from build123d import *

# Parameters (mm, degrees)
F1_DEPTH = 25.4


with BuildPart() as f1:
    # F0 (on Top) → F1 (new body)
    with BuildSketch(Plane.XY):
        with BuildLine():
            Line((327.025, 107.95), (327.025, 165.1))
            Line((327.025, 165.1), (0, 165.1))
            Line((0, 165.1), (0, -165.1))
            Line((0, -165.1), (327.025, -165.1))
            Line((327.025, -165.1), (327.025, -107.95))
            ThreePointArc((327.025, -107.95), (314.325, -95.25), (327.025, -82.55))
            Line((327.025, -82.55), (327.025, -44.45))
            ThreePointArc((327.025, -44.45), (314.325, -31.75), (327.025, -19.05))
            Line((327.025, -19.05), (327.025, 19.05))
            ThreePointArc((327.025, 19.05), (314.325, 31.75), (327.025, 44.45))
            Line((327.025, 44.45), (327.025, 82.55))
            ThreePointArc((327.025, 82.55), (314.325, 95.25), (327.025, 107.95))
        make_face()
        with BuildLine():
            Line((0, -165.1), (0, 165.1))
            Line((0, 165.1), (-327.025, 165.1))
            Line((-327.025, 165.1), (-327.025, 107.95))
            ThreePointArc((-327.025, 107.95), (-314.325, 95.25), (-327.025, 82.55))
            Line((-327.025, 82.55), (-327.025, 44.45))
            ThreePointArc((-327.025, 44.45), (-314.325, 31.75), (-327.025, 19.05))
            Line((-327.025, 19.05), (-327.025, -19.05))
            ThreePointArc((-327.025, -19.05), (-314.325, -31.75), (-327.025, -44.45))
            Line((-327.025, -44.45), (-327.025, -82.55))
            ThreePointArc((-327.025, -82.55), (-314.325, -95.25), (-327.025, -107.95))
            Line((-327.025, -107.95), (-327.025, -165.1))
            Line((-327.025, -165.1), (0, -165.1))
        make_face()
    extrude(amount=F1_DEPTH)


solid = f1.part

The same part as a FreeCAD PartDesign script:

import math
import FreeCAD as App
import Part
import Sketcher
from FreeCAD import Vector
Q = App.Units.Quantity

doc = App.newDocument("Part")
body = doc.addObject("PartDesign::Body", "Body")

# Sketch on XY plane
sketch1 = body.newObject("Sketcher::SketchObject", "Sketch")
sketch1.AttachmentSupport = (doc.getObject("XY_Plane"), [""])
sketch1.MapMode = "FlatFace"
sketch1.addGeometry([
    Part.LineSegment(Vector(327, 108, 0), Vector(327, 165, 0)),  # 0
    Part.LineSegment(Vector(327, 165, 0), Vector(-327, 165, 0)),  # 1
    Part.LineSegment(Vector(-327, 165, 0), Vector(-327, 108, 0)),  # 2
    Part.ArcOfCircle(Part.Circle(Vector(-327, 95, 0), Vector(0, 0, 1), 13), math.radians(-90), math.radians(90)),  # 3
    Part.LineSegment(Vector(-327, 83, 0), Vector(-327, 44, 0)),  # 4
    Part.ArcOfCircle(Part.Circle(Vector(-327, 32, 0), Vector(0, 0, 1), 13), math.radians(-90), math.radians(90)),  # 5
    Part.LineSegment(Vector(-327, 19, 0), Vector(-327, -19, 0)),  # 6
    Part.ArcOfCircle(Part.Circle(Vector(-327, -32, 0), Vector(0, 0, 1), 13), math.radians(-90), math.radians(90)),  # 7
    Part.LineSegment(Vector(-327, -44, 0), Vector(-327, -83, 0)),  # 8
    Part.ArcOfCircle(Part.Circle(Vector(-327, -95, 0), Vector(0, 0, 1), 13), math.radians(-90), math.radians(90)),  # 9
    Part.LineSegment(Vector(-327, -108, 0), Vector(-327, -165, 0)),  # 10
    Part.LineSegment(Vector(-327, -165, 0), Vector(327, -165, 0)),  # 11
    Part.LineSegment(Vector(327, -165, 0), Vector(327, -108, 0)),  # 12
    Part.ArcOfCircle(Part.Circle(Vector(327, -95, 0), Vector(0, 0, 1), 13), math.radians(90), math.radians(270)),  # 13
    Part.LineSegment(Vector(327, -83, 0), Vector(327, -44, 0)),  # 14
    Part.ArcOfCircle(Part.Circle(Vector(327, -32, 0), Vector(0, 0, 1), 13), math.radians(90), math.radians(270)),  # 15
    Part.LineSegment(Vector(327, -19, 0), Vector(327, 19, 0)),  # 16
    Part.ArcOfCircle(Part.Circle(Vector(327, 32, 0), Vector(0, 0, 1), 13), math.radians(90), math.radians(270)),  # 17
    Part.LineSegment(Vector(327, 44, 0), Vector(327, 83, 0)),  # 18
    Part.ArcOfCircle(Part.Circle(Vector(327, 95, 0), Vector(0, 0, 1), 13), math.radians(90), math.radians(270)),  # 19
], False)
sketch1.addConstraint([
    Sketcher.Constraint("Coincident", 0, 2, 1, 1),
    Sketcher.Constraint("Coincident", 1, 2, 2, 1),
    Sketcher.Constraint("Coincident", 2, 2, 3, 2),
    Sketcher.Constraint("Coincident", 3, 1, 4, 1),
    Sketcher.Constraint("Coincident", 4, 2, 5, 2),
    Sketcher.Constraint("Coincident", 5, 1, 6, 1),
    Sketcher.Constraint("Coincident", 6, 2, 7, 2),
    Sketcher.Constraint("Coincident", 7, 1, 8, 1),
    Sketcher.Constraint("Coincident", 8, 2, 9, 2),
    Sketcher.Constraint("Coincident", 9, 1, 10, 1),
    Sketcher.Constraint("Coincident", 10, 2, 11, 1),
    Sketcher.Constraint("Coincident", 11, 2, 12, 1),
    Sketcher.Constraint("Coincident", 12, 2, 13, 2),
    Sketcher.Constraint("Coincident", 13, 1, 14, 1),
    Sketcher.Constraint("Coincident", 14, 2, 15, 2),
    Sketcher.Constraint("Coincident", 15, 1, 16, 1),
    Sketcher.Constraint("Coincident", 16, 2, 17, 2),
    Sketcher.Constraint("Coincident", 17, 1, 18, 1),
    Sketcher.Constraint("Coincident", 18, 2, 19, 2),
    Sketcher.Constraint("Coincident", 19, 1, 0, 1),
    Sketcher.Constraint("Vertical", 0),
    Sketcher.Constraint("Horizontal", 1),
    Sketcher.Constraint("Vertical", 2),
    Sketcher.Constraint("Vertical", 4),
    Sketcher.Constraint("Vertical", 6),
    Sketcher.Constraint("Vertical", 8),
    Sketcher.Constraint("Vertical", 10),
    Sketcher.Constraint("Horizontal", 11),
    Sketcher.Constraint("Vertical", 12),
    Sketcher.Constraint("Vertical", 14),
    Sketcher.Constraint("Vertical", 16),
    Sketcher.Constraint("Vertical", 18),
    Sketcher.Constraint("Equal", 3, 5),
    Sketcher.Constraint("Equal", 5, 7),
    Sketcher.Constraint("Equal", 7, 9),
    Sketcher.Constraint("Equal", 9, 13),
    Sketcher.Constraint("Equal", 13, 15),
    Sketcher.Constraint("Equal", 15, 17),
    Sketcher.Constraint("Equal", 17, 19),
    Sketcher.Constraint("Symmetric", 3, 3, 13, 3, -1, 1),
    Sketcher.Constraint("Symmetric", 5, 3, 15, 3, -1, 1),
    Sketcher.Constraint("Symmetric", 7, 3, 17, 3, -1, 1),
    Sketcher.Constraint("Symmetric", 9, 3, 19, 3, -1, 1),
    Sketcher.Constraint("Symmetric", 0, 2, 10, 2, -1, 1),
    Sketcher.Constraint("Symmetric", 9, 3, 13, 3, -2),
    Sketcher.Constraint("Symmetric", 7, 3, 15, 3, -2),
    Sketcher.Constraint("Vertical", 3, 3, 5, 3),
    Sketcher.Constraint("Vertical", 19, 3, 0, 2),
    Sketcher.Constraint("Vertical", 9, 3, 1, 2),
    Sketcher.Constraint("Vertical", 2, 2, 3, 1),
    Sketcher.Constraint("Vertical", 4, 2, 5, 1),
    Sketcher.Constraint("Vertical", 6, 2, 7, 1),
    Sketcher.Constraint("Vertical", 0, 2, 11, 2),
    Sketcher.Constraint("Vertical", 12, 2, 13, 1),
    Sketcher.Constraint("Vertical", 14, 2, 15, 1),
    Sketcher.Constraint("Vertical", 16, 2, 17, 1),
    Sketcher.Constraint("Equal", 4, 6),
    Sketcher.Constraint("Radius", 3, Q("0.5 in")),
    Sketcher.Constraint("DistanceY", 4, 2, 4, 1, Q("1.5 in")),
    Sketcher.Constraint("DistanceY", 11, 2, 0, 2, Q("13 in")),
    Sketcher.Constraint("DistanceX", 1, 2, 1, 1, Q("25.75 in")),
])
pad1 = body.newObject("PartDesign::Pad", "Pad")
pad1.Profile = sketch1
pad1.Length = Q("1 in")

doc.recompute()
